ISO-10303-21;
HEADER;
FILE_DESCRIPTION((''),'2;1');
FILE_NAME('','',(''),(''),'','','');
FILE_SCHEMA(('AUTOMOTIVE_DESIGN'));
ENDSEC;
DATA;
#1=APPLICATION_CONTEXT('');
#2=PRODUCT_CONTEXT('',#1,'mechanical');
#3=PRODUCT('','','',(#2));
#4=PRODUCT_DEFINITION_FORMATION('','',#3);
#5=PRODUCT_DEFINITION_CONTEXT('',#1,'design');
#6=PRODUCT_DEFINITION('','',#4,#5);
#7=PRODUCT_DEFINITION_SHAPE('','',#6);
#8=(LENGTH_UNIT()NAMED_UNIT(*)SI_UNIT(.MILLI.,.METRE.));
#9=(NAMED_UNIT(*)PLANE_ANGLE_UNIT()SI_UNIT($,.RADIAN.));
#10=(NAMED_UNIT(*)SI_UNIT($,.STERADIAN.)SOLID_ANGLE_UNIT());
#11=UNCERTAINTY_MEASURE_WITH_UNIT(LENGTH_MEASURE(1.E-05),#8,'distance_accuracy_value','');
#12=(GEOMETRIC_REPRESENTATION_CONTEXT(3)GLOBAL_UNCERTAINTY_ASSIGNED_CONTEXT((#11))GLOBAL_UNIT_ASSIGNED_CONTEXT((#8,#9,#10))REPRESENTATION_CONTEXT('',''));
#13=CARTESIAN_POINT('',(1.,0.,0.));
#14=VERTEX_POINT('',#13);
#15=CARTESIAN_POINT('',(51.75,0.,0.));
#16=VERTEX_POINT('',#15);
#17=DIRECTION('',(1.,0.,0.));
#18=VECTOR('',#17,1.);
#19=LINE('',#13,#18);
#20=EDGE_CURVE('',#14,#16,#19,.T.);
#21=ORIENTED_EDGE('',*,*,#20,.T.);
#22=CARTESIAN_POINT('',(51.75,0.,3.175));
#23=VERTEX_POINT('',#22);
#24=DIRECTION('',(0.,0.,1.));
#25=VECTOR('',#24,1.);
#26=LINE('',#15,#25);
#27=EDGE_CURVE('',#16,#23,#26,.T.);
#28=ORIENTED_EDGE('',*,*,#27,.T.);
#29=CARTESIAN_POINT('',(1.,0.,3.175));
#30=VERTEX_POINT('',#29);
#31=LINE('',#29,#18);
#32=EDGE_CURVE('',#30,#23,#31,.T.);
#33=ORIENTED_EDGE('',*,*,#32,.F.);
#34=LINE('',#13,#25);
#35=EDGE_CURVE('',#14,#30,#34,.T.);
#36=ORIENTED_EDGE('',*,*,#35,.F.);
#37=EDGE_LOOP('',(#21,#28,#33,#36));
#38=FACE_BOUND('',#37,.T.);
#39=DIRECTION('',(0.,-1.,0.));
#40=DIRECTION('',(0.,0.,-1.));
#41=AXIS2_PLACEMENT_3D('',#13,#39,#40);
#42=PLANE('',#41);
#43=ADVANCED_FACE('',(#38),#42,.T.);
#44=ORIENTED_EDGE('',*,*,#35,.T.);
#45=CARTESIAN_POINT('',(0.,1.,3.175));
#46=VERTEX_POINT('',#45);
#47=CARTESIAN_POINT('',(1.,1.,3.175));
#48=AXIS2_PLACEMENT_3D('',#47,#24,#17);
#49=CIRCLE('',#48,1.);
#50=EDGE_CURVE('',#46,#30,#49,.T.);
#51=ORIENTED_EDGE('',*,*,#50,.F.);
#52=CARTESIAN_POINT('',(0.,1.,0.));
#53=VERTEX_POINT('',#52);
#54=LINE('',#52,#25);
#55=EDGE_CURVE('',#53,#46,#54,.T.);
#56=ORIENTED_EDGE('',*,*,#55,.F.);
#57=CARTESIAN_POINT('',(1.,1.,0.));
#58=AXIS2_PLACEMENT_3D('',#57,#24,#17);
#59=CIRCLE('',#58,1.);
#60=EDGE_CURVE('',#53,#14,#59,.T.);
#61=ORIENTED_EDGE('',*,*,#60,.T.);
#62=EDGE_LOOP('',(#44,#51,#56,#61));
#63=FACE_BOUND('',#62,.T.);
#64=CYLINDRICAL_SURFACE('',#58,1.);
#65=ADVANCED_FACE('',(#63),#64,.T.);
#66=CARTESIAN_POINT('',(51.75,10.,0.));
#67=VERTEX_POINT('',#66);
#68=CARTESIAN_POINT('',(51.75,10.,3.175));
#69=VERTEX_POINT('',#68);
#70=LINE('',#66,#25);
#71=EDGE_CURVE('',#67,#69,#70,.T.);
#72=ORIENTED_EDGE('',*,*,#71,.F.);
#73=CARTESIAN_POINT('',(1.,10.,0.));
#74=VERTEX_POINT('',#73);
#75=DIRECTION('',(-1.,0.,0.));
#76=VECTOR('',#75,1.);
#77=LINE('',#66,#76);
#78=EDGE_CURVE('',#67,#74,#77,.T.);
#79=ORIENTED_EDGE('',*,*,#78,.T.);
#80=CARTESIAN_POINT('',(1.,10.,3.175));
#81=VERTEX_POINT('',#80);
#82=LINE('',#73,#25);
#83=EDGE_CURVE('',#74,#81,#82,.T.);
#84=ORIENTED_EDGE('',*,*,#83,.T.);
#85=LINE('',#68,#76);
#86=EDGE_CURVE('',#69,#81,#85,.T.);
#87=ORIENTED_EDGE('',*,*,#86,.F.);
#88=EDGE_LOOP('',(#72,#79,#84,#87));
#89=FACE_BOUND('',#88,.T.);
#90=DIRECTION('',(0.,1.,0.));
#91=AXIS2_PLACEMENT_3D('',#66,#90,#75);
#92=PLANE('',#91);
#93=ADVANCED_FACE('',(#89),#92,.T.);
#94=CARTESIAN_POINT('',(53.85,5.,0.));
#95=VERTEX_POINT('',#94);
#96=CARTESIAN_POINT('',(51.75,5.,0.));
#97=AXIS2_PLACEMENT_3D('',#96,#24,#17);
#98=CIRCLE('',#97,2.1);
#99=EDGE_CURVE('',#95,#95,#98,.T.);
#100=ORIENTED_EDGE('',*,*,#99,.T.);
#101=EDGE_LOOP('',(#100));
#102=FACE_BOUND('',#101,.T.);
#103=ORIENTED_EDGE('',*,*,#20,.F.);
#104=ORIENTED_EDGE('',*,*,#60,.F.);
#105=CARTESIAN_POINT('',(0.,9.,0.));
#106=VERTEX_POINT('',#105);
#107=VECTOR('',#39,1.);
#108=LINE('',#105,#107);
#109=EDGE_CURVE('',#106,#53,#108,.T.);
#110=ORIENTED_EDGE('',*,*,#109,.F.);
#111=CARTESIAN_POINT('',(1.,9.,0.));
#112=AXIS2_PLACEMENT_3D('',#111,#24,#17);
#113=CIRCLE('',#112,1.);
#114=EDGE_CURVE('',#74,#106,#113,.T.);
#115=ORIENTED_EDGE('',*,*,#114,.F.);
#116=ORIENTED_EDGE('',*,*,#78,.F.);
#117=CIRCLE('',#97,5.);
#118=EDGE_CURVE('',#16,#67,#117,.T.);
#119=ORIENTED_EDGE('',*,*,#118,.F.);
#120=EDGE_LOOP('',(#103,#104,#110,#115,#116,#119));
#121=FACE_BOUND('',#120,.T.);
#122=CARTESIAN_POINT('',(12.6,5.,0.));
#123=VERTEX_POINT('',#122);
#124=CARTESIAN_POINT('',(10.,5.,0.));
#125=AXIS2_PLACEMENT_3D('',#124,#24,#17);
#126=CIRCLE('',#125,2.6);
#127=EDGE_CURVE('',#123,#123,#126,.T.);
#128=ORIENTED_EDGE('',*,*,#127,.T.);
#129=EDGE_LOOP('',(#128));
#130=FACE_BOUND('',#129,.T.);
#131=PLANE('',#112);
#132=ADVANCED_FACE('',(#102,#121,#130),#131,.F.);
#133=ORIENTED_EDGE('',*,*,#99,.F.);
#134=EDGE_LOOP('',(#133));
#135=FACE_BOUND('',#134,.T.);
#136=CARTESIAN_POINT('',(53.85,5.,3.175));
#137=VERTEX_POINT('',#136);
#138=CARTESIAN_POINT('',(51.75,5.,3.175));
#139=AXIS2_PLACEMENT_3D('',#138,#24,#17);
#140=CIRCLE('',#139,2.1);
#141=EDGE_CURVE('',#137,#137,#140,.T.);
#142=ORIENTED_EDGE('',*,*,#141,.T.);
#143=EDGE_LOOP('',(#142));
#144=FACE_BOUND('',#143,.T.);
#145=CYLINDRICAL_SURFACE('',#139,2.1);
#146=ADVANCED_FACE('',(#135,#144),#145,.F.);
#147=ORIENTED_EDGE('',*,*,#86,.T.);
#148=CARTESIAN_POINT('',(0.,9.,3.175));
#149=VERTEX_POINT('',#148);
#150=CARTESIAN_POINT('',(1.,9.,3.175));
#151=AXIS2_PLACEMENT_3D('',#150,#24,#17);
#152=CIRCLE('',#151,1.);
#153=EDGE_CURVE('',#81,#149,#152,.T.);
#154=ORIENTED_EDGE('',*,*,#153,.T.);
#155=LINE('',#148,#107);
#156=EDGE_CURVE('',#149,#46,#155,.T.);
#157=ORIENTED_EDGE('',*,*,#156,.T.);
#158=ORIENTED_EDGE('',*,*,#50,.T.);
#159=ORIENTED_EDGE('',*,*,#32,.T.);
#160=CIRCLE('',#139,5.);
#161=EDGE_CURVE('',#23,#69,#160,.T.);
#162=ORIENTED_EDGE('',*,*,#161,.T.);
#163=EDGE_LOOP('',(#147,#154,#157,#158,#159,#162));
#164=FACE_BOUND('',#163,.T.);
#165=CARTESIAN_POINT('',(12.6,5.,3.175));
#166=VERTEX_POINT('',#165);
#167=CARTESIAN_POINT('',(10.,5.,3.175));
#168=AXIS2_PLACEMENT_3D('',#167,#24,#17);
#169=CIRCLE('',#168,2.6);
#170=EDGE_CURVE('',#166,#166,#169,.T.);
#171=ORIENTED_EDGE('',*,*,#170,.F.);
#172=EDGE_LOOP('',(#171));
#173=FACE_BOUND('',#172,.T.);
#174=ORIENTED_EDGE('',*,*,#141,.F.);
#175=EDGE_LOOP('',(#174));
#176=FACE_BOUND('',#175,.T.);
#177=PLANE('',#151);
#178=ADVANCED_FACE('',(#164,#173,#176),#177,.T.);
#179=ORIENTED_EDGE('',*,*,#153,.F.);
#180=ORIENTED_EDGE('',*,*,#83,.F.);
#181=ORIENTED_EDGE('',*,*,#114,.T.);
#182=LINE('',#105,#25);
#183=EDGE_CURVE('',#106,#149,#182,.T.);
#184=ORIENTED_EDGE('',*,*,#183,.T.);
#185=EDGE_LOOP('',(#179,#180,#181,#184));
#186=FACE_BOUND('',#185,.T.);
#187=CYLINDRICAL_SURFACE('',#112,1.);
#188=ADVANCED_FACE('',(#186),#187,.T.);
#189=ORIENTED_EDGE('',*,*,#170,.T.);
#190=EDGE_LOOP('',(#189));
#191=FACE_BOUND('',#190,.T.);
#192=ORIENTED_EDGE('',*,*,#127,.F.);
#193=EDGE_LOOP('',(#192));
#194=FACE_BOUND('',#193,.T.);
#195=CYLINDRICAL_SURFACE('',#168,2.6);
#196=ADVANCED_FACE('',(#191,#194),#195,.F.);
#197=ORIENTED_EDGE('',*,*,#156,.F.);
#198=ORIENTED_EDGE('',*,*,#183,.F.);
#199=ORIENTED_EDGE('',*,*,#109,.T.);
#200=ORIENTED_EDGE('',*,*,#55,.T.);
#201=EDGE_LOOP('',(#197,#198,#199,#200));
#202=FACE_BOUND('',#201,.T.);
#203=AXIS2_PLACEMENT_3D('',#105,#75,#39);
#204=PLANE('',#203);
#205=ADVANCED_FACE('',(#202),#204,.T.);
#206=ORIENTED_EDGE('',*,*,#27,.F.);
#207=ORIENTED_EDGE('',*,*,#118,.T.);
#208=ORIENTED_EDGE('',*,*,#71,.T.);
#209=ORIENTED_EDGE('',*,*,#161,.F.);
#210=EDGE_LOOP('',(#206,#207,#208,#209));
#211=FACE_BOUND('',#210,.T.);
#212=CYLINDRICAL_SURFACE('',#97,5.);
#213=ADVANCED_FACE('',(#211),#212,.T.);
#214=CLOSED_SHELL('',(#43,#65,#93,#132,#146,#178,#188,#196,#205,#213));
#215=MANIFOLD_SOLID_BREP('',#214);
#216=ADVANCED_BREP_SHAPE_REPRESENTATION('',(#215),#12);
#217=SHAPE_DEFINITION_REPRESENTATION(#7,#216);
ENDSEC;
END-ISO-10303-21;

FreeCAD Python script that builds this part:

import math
import FreeCAD as App
import Part
import Sketcher
from FreeCAD import Vector
Q = App.Units.Quantity

doc = App.newDocument("Part")
params = doc.addObject("Spreadsheet::Sheet", "Params")
for row, (alias, value) in enumerate([
    ("sketch1_radius", "1 mm"),
    ("sketch1_radius2", "5 mm"),
    ("sketch1_width", "50.75 mm"),
    ("pad1_length", "3.175 mm"),
    ("sketch2_diameter", "4.2 mm"),
    ("hole_diameter", "4.2 mm"),
    ("sketch3_diameter", "5.2 mm"),
    ("hole2_diameter", "5.2 mm"),
], start=1):
    params.set(f"A{row}", alias)
    params.set(f"B{row}", "=" + value)
    params.setAlias(f"B{row}", alias)

body = doc.addObject("PartDesign::Body", "Body")

sketch1 = body.newObject("Sketcher::SketchObject", "Sketch")
sketch1.AttachmentSupport = (doc.getObject("XY_Plane"), [""])
sketch1.MapMode = "FlatFace"
sketch1.AttachmentOffset = App.Placement(Vector(0, 0, 3.175), App.Rotation())
sketch1.addGeometry(Part.LineSegment(Vector(0, 9, 0), Vector(0, 1, 0)), False)
sketch1.addGeometry(Part.ArcOfCircle(Part.Circle(Vector(1, 1, 0), Vector(0, 0, 1), 1), math.radians(-180), math.radians(-90)), False)
sketch1.addGeometry(Part.LineSegment(Vector(1, 0, 0), Vector(51.8, 0, 0)), False)
sketch1.addGeometry(Part.ArcOfCircle(Part.Circle(Vector(51.8, 5, 0), Vector(0, 0, 1), 5), math.radians(-90), math.radians(90)), False)
sketch1.addGeometry(Part.LineSegment(Vector(51.8, 10, 0), Vector(1, 10, 0)), False)
sketch1.addGeometry(Part.ArcOfCircle(Part.Circle(Vector(1, 9, 0), Vector(0, 0, 1), 1), math.radians(90), math.radians(180)), False)
sketch1.addConstraint(Sketcher.Constraint("Tangent", 0, 2, 1, 1))
sketch1.addConstraint(Sketcher.Constraint("Tangent", 1, 2, 2, 1))
sketch1.addConstraint(Sketcher.Constraint("Tangent", 2, 2, 3, 1))
sketch1.addConstraint(Sketcher.Constraint("Tangent", 3, 2, 4, 1))
sketch1.addConstraint(Sketcher.Constraint("Tangent", 4, 2, 5, 1))
sketch1.addConstraint(Sketcher.Constraint("Tangent", 5, 2, 0, 1))
sketch1.addConstraint(Sketcher.Constraint("Vertical", 0))
sketch1.addConstraint(Sketcher.Constraint("Horizontal", 2))
sketch1.addConstraint(Sketcher.Constraint("Horizontal", 4))
sketch1.addConstraint(Sketcher.Constraint("Equal", 1, 5))
sketch1.addConstraint(Sketcher.Constraint("PointOnObject", 0, 2, -2))
sketch1.addConstraint(Sketcher.Constraint("PointOnObject", 1, 2, -1))
sketch1.addConstraint(Sketcher.Constraint("Radius", 1, Q("1 mm")))
sketch1.addConstraint(Sketcher.Constraint("Radius", 3, Q("5 mm")))
sketch1.addConstraint(Sketcher.Constraint("DistanceX", 2, 1, 2, 2, Q("50.75 mm")))
sketch1.setExpression("Constraints[12]", "Params.sketch1_radius")
sketch1.setExpression("Constraints[13]", "Params.sketch1_radius2")
sketch1.setExpression("Constraints[14]", "Params.sketch1_width")
pad1 = body.newObject("PartDesign::Pad", "Pad")
pad1.Profile = sketch1
pad1.setExpression("Length", "Params.pad1_length")
pad1.Reversed = True

sketch2 = body.newObject("Sketcher::SketchObject", "Sketch001")
sketch2.AttachmentSupport = (doc.getObject("XY_Plane"), [""])
sketch2.MapMode = "FlatFace"
sketch2.AttachmentOffset = App.Placement(Vector(0, 0, 3.175), App.Rotation())
sketch2.addGeometry(Part.Circle(Vector(51.8, 5, 0), Vector(0, 0, 1), 2.1), False)
sketch2.addConstraint(Sketcher.Constraint("Diameter", 0, Q("4.2 mm")))
sketch2.addConstraint(Sketcher.Constraint("DistanceY", -1, 1, 0, 3, Q("5 mm")))
sketch2.addConstraint(Sketcher.Constraint("DistanceX", -1, 1, 0, 3, Q("51.75 mm")))
sketch2.setExpression("Constraints[0]", "Params.sketch2_diameter")
doc.recompute()
hole = body.newObject("PartDesign::Hole", "Hole")
hole.Profile = sketch2
hole.ThreadType = "None"
hole.setExpression("Diameter", "Params.hole_diameter")
hole.DepthType = "ThroughAll"

sketch3 = body.newObject("Sketcher::SketchObject", "Sketch002")
sketch3.AttachmentSupport = (doc.getObject("XY_Plane"), [""])
sketch3.MapMode = "FlatFace"
sketch3.AttachmentOffset = App.Placement(Vector(0, 0, 3.175), App.Rotation())
sketch3.addGeometry(Part.Circle(Vector(10, 5, 0), Vector(0, 0, 1), 2.6), False)
sketch3.addConstraint(Sketcher.Constraint("Diameter", 0, Q("5.2 mm")))
sketch3.addConstraint(Sketcher.Constraint("DistanceX", -1, 1, 0, 3, Q("10 mm")))
sketch3.addConstraint(Sketcher.Constraint("DistanceY", -1, 1, 0, 3, Q("5 mm")))
sketch3.setExpression("Constraints[0]", "Params.sketch3_diameter")
doc.recompute()
hole2 = body.newObject("PartDesign::Hole", "Hole001")
hole2.Profile = sketch3
hole2.ThreadType = "None"
hole2.setExpression("Diameter", "Params.hole2_diameter")
hole2.DepthType = "ThroughAll"

doc.recompute()
